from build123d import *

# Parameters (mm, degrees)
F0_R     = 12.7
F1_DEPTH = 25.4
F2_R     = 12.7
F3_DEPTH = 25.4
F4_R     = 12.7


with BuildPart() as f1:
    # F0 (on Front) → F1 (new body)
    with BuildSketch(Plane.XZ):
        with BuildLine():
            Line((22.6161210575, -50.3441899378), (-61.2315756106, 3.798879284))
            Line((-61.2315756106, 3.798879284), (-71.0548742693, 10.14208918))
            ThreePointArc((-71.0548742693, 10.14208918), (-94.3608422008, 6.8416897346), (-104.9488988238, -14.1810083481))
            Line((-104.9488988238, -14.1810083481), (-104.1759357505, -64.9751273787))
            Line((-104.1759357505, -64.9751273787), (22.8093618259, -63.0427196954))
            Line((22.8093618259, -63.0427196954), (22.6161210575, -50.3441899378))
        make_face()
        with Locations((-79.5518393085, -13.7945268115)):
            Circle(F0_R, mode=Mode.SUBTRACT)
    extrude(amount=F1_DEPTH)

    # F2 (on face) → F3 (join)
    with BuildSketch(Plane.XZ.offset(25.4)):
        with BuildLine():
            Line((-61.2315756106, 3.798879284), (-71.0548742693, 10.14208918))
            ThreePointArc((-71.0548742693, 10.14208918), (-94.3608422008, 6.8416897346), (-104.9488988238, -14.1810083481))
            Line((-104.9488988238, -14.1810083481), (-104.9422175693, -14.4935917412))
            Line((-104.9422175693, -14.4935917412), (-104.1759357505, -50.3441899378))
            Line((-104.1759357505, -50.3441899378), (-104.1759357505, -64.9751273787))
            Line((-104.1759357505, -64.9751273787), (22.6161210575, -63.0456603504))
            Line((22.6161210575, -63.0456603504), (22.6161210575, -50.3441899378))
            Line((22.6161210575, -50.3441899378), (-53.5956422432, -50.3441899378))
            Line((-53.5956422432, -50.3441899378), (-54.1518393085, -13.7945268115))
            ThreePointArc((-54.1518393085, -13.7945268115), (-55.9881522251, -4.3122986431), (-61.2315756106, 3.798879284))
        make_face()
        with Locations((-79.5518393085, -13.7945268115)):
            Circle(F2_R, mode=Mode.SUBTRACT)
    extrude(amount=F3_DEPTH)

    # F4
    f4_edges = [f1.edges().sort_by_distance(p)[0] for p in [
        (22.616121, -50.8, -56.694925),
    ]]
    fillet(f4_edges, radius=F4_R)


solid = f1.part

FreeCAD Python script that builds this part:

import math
import FreeCAD as App
import Part
import Sketcher
from FreeCAD import Vector
Q = App.Units.Quantity


def edges_at(feature, points):
    """Names of the edges that pass closest to the given points."""
    edges = feature.Shape.Edges
    near = lambda p: min(range(len(edges)), key=lambda i: edges[i].distToShape(Part.Vertex(*p))[0])
    return sorted({f"Edge{near(p) + 1}" for p in points})

doc = App.newDocument("Part")
body = doc.addObject("PartDesign::Body", "Body")

sketch1 = body.newObject("Sketcher::SketchObject", "Sketch")
sketch1.AttachmentSupport = (doc.getObject("XZ_Plane"), [""])
sketch1.MapMode = "FlatFace"
sketch1.addGeometry([
    Part.LineSegment(Vector(23, -50, 0), Vector(-61, 4, 0)),
    Part.LineSegment(Vector(-61, 4, 0), Vector(-71, 10, 0)),
    Part.ArcOfCircle(Part.Circle(Vector(-80, -14, 0), Vector(0, 0, 1), 25), math.radians(70), math.radians(181)),
    Part.LineSegment(Vector(-105, -14, 0), Vector(-104, -65, 0)),
    Part.LineSegment(Vector(-104, -65, 0), Vector(23, -63, 0)),
    Part.LineSegment(Vector(23, -63, 0), Vector(23, -50, 0)),
    Part.Circle(Vector(-80, -14, 0), Vector(0, 0, 1), 13),
], False)
sketch1.addConstraint([
    Sketcher.Constraint("Coincident", 0, 2, 1, 1),
    Sketcher.Constraint("Coincident", 1, 2, 2, 1),
    Sketcher.Constraint("Tangent", 2, 2, 3, 1),
    Sketcher.Constraint("Coincident", 3, 2, 4, 1),
    Sketcher.Constraint("Coincident", 4, 2, 5, 1),
    Sketcher.Constraint("Coincident", 5, 2, 0, 1),
    Sketcher.Constraint("Coincident", 6, 3, 2, 3),
    Sketcher.Constraint("Parallel", 0, 1),
    Sketcher.Constraint("Perpendicular", 3, 4),
    Sketcher.Constraint("Perpendicular", 4, 5),
    Sketcher.Constraint("Diameter", 6, Q("1 in")),
    Sketcher.Constraint("Radius", 2, Q("1 in")),
    Sketcher.Constraint("Distance", 3, Q("2 in")),
    Sketcher.Constraint("Distance", 4, Q("5 in")),
    Sketcher.Constraint("Distance", 5, Q("0.5 in")),
    Sketcher.Constraint("DistanceX", 2, 2, -1, 1, 104.948899),
    Sketcher.Constraint("DistanceX", 1, 2, 0, 2, 9.823299),
    Sketcher.Constraint("DistanceY", 3, 2, 6, 3, 51.180601),
    Sketcher.Constraint("DistanceY", 4, 2, 0, 2, 66.841599),
    Sketcher.Constraint("DistanceY", -1, 1, 0, 2, 3.798879),
])
pad1 = body.newObject("PartDesign::Pad", "Pad")
pad1.Profile = sketch1
pad1.Length = Q("1 in")

sketch2 = body.newObject("Sketcher::SketchObject", "Sketch001")
sketch2.AttachmentSupport = (doc.getObject("XZ_Plane"), [""])
sketch2.MapMode = "FlatFace"
sketch2.AttachmentOffset = App.Placement(Vector(0, 0, 1 * 25.4), App.Rotation())
sketch2.addGeometry([
    Part.LineSegment(Vector(-61.231576, 3.798879, 0), Vector(-71.054874, 10.142089, 0)),
    Part.ArcOfCircle(Part.Circle(Vector(-79.551839, -13.794527, 0), Vector(0, 0, 1), 25.4), math.radians(70.456272), math.radians(180.871835)),
    Part.LineSegment(Vector(-104.948899, -14.181008, 0), Vector(-104.942218, -14.493592, 0)),
    Part.LineSegment(Vector(-104.942218, -14.493592, 0), Vector(-104.175936, -50.34419, 0)),
    Part.LineSegment(Vector(-104.175936, -50.34419, 0), Vector(-104.175936, -64.975127, 0)),
    Part.LineSegment(Vector(-104.175936, -64.975127, 0), Vector(22.616121, -63.04566, 0)),
    Part.LineSegment(Vector(22.616121, -63.04566, 0), Vector(22.616121, -50.34419, 0)),
    Part.LineSegment(Vector(22.616121, -50.34419, 0), Vector(-53.595642, -50.34419, 0)),
    Part.LineSegment(Vector(-53.595642, -50.34419, 0), Vector(-54.151839, -13.794527, 0)),
    Part.ArcOfCircle(Part.Circle(Vector(-79.551839, -13.794527, 0), Vector(0, 0, 1), 25.4), math.radians(0), math.radians(43.840548)),
    Part.Circle(Vector(-79.551839, -13.794527, 0), Vector(0, 0, 1), 12.7),
], False)
sketch2.addConstraint([
    Sketcher.Constraint("Coincident", 0, 2, 1, 1),
    Sketcher.Constraint("Coincident", 1, 2, 2, 1),
    Sketcher.Constraint("Coincident", 2, 2, 3, 1),
    Sketcher.Constraint("Coincident", 3, 2, 4, 1),
    Sketcher.Constraint("Coincident", 4, 2, 5, 1),
    Sketcher.Constraint("Coincident", 5, 2, 6, 1),
    Sketcher.Constraint("Coincident", 6, 2, 7, 1),
    Sketcher.Constraint("Coincident", 7, 2, 8, 1),
    Sketcher.Constraint("Coincident", 8, 2, 9, 1),
    Sketcher.Constraint("Coincident", 9, 2, 0, 1),
    Sketcher.Constraint("Vertical", 4),
    Sketcher.Constraint("Vertical", 6),
    Sketcher.Constraint("Horizontal", 7),
    Sketcher.Constraint("Coincident", 9, 3, 1, 3),
    Sketcher.Constraint("Coincident", 10, 3, 1, 3),
    Sketcher.Constraint("Equal", 1, 9),
    Sketcher.Constraint("Parallel", 2, 3),
    Sketcher.Constraint("Perpendicular", 5, 8),
    Sketcher.Constraint("Horizontal", 3, 2, 6, 2),
    Sketcher.Constraint("Horizontal", 10, 3, 8, 2),
    Sketcher.Constraint("Diameter", 10, Q("1 in")),
    Sketcher.Constraint("Radius", 1, Q("1 in")),
    Sketcher.Constraint("DistanceY", 6, 1, 6, 2, 12.70147),
    Sketcher.Constraint("DistanceX", 1, 2, -1, 1, 104.948899),
    Sketcher.Constraint("DistanceY", 3, 2, 2, 2, 35.850598),
    Sketcher.Constraint("DistanceY", 4, 2, 10, 3, 51.180601),
    Sketcher.Constraint("DistanceX", 0, 2, 9, 2, 9.823299),
    Sketcher.Constraint("Distance", 0, 11.69331),
    Sketcher.Constraint("DistanceX", 7, 2, 7, 1, 76.211763),
    Sketcher.Constraint("DistanceY", 4, 2, 4, 1, 14.630937),
    Sketcher.Constraint("DistanceX", 1, 3, -1, 1, 79.551839),
    Sketcher.Constraint("DistanceY", -1, 1, 0, 2, 10.142089),
    Sketcher.Constraint("DistanceX", -1, 1, 5, 2, 22.616121),
])
pad2 = body.newObject("PartDesign::Pad", "Pad001")
pad2.Profile = sketch2
pad2.Length = Q("1 in")
doc.recompute()

fillet = body.newObject("PartDesign::Fillet", "Fillet")
fillet.Base = (pad2, edges_at(pad2, [(22.616, -50.8, -56.695)]))
fillet.Radius = Q("0.5 in")

doc.recompute()
